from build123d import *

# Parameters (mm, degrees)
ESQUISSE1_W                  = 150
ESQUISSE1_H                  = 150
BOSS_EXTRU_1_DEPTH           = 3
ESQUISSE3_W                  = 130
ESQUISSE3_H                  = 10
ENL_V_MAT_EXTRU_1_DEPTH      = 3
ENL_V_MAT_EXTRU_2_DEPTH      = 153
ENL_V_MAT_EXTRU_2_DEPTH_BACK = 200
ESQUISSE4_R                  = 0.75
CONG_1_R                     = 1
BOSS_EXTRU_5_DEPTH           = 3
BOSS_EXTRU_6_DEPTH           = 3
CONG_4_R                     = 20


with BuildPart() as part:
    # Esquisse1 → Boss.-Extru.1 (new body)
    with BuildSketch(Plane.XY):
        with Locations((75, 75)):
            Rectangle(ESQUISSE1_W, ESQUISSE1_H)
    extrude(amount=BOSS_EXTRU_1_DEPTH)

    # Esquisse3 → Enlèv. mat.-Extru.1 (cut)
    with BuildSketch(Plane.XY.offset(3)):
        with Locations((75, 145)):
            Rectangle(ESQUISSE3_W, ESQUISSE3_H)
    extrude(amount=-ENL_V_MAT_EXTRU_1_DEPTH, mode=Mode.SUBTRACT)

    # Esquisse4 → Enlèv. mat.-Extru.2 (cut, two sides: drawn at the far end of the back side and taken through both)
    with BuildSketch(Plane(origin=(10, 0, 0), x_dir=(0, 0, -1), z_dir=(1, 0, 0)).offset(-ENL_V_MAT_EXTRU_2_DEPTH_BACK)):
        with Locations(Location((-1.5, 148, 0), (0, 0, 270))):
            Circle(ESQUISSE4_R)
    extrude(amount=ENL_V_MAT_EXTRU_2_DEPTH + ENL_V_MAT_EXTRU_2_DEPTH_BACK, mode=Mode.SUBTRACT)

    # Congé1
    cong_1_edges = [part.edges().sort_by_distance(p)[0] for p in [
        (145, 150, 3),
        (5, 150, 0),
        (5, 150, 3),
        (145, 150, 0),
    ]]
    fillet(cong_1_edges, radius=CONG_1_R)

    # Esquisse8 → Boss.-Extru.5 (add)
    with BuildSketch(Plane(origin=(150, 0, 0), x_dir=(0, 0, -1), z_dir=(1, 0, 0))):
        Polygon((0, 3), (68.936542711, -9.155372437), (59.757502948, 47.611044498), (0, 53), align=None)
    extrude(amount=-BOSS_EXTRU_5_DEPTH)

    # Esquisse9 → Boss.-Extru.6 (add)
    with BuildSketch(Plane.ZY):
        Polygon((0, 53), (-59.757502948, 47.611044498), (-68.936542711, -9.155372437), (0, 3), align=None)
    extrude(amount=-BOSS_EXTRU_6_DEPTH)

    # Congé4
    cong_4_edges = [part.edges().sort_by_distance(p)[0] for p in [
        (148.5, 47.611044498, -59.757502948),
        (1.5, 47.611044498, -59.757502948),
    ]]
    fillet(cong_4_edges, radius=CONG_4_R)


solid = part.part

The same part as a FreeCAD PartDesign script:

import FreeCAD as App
import Part
import Sketcher

V = App.Vector
Q = App.Units.Quantity


def edges_at(feature, points):
    """Names of the edges that pass closest to the given points."""
    edges = feature.Shape.Edges
    near = lambda p: min(range(len(edges)), key=lambda i: edges[i].distToShape(Part.Vertex(*p))[0])
    return sorted({f"Edge{near(p) + 1}" for p in points})

doc = App.newDocument("Part")
params = doc.addObject("Spreadsheet::Sheet", "Params")
for row, (alias, value) in enumerate([
    ("sketch1_width", "150 mm"),
    ("pad1_length", "3 mm"),
    ("sketch2_width", "130 mm"),
    ("sketch2_height", "10 mm"),
    ("pocket1_length", "3 mm"),
    ("sketch3_diameter", "1.5 mm"),
    ("fillet_radius", "1 mm"),
    ("sketch4_width", "50 mm"),
    ("sketch4_length", "70 mm"),
    ("sketch4_length2", "60 mm"),
    ("pad2_length", "3 mm"),
    ("sketch5_width", "50 mm"),
    ("sketch5_length", "60 mm"),
    ("sketch5_length2", "70 mm"),
    ("pad3_length", "3 mm"),
    ("fillet2_radius", "20 mm"),
], start=1):
    params.set(f"A{row}", alias)
    params.set(f"B{row}", "=" + value)
    params.setAlias(f"B{row}", alias)

body = doc.addObject("PartDesign::Body", "Body")

# Sketch on XY plane
sketch1 = body.newObject("Sketcher::SketchObject", "Sketch")
sketch1.AttachmentSupport = (doc.getObject("XY_Plane"), [""])
sketch1.MapMode = "FlatFace"
sketch1.addGeometry(Part.LineSegment(V(0, 150, 0), V(0, 0, 0)), False)
sketch1.addGeometry(Part.LineSegment(V(0, 0, 0), V(150, 0, 0)), False)
sketch1.addGeometry(Part.LineSegment(V(150, 0, 0), V(150, 150, 0)), False)
sketch1.addGeometry(Part.LineSegment(V(150, 150, 0), V(0, 150, 0)), False)
sketch1.addConstraint(Sketcher.Constraint("Coincident", 0, 2, 1, 1))
sketch1.addConstraint(Sketcher.Constraint("Coincident", 1, 2, 2, 1))
sketch1.addConstraint(Sketcher.Constraint("Coincident", 2, 2, 3, 1))
sketch1.addConstraint(Sketcher.Constraint("Coincident", 3, 2, 0, 1))
sketch1.addConstraint(Sketcher.Constraint("Vertical", 0))
sketch1.addConstraint(Sketcher.Constraint("Horizontal", 1))
sketch1.addConstraint(Sketcher.Constraint("Vertical", 2))
sketch1.addConstraint(Sketcher.Constraint("Horizontal", 3))
sketch1.addConstraint(Sketcher.Constraint("Coincident", 0, 2, -1, 1))
sketch1.addConstraint(Sketcher.Constraint("Equal", 3, 0))
sketch1.addConstraint(Sketcher.Constraint("DistanceX", 1, 1, 1, 2, 150.0))
sketch1.setExpression("Constraints[10]", "Params.sketch1_width")
pad1 = body.newObject("PartDesign::Pad", "Pad")
pad1.Profile = sketch1
pad1.setExpression("Length", "Params.pad1_length")

# Sketch on XY plane
sketch2 = body.newObject("Sketcher::SketchObject", "Sketch001")
sketch2.AttachmentSupport = (doc.getObject("XY_Plane"), [""])
sketch2.MapMode = "FlatFace"
sketch2.AttachmentOffset = App.Placement(V(0, 0, 3), App.Rotation())
sketch2.addGeometry(Part.LineSegment(V(10, 150, 0), V(10, 140, 0)), False)
sketch2.addGeometry(Part.LineSegment(V(10, 140, 0), V(140, 140, 0)), False)
sketch2.addGeometry(Part.LineSegment(V(140, 140, 0), V(140, 150, 0)), False)
sketch2.addGeometry(Part.LineSegment(V(140, 150, 0), V(10, 150, 0)), False)
sketch2.addConstraint(Sketcher.Constraint("Coincident", 0, 2, 1, 1))
sketch2.addConstraint(Sketcher.Constraint("Coincident", 1, 2, 2, 1))
sketch2.addConstraint(Sketcher.Constraint("Coincident", 2, 2, 3, 1))
sketch2.addConstraint(Sketcher.Constraint("Coincident", 3, 2, 0, 1))
sketch2.addConstraint(Sketcher.Constraint("Vertical", 0))
sketch2.addConstraint(Sketcher.Constraint("Horizontal", 1))
sketch2.addConstraint(Sketcher.Constraint("Vertical", 2))
sketch2.addConstraint(Sketcher.Constraint("Horizontal", 3))
sketch2.addConstraint(Sketcher.Constraint("DistanceX", 1, 1, 1, 2, 130.0))
sketch2.addConstraint(Sketcher.Constraint("DistanceY", 0, 2, 0, 1, 10.0))
sketch2.addConstraint(Sketcher.Constraint("DistanceX", -1, 1, 0, 2, 10.0))
sketch2.addConstraint(Sketcher.Constraint("DistanceY", -1, 1, 0, 2, 140.0))
sketch2.setExpression("Constraints[8]", "Params.sketch2_width")
sketch2.setExpression("Constraints[9]", "Params.sketch2_height")
pocket1 = body.newObject("PartDesign::Pocket", "Pocket")
pocket1.Profile = sketch2
pocket1.setExpression("Length", "Params.pocket1_length")

# Sketch on YZ plane
sketch3 = body.newObject("Sketcher::SketchObject", "Sketch002")
sketch3.AttachmentSupport = (doc.getObject("YZ_Plane"), [""])
sketch3.MapMode = "FlatFace"
sketch3.AttachmentOffset = App.Placement(V(0, 0, 10), App.Rotation())
sketch3.addGeometry(Part.Circle(V(148, 1.5, 0), V(0, 0, 1), 0.8), False)
sketch3.addConstraint(Sketcher.Constraint("Diameter", 0, 1.5))
sketch3.addConstraint(Sketcher.Constraint("DistanceX", -1, 1, 0, 3, 148.0))
sketch3.addConstraint(Sketcher.Constraint("DistanceY", -1, 1, 0, 3, 1.5))
sketch3.setExpression("Constraints[0]", "Params.sketch3_diameter")
pocket2 = body.newObject("PartDesign::Pocket", "Pocket001")
pocket2.Profile = sketch3
pocket2.Type = "ThroughAll"
pocket2.Midplane = True
doc.recompute()

fillet = body.newObject("PartDesign::Fillet", "Fillet")
fillet.Base = (pocket2, edges_at(pocket2, [
    (145, 150, 3),
    (5, 150, 0),
    (5, 150, 3),
    (145, 150, 0),
]))
fillet.setExpression("Radius", "Params.fillet_radius")

# Sketch on YZ plane
sketch4 = body.newObject("Sketcher::SketchObject", "Sketch003")
sketch4.AttachmentSupport = (doc.getObject("YZ_Plane"), [""])
sketch4.MapMode = "FlatFace"
sketch4.AttachmentOffset = App.Placement(V(0, 0, 150), App.Rotation())
sketch4.addGeometry(Part.LineSegment(V(3, 0, 0), V(-9, -69, 0)), False)
sketch4.addGeometry(Part.LineSegment(V(-9, -69, 0), V(48, -60, 0)), False)
sketch4.addGeometry(Part.LineSegment(V(48, -60, 0), V(53, 0, 0)), False)
sketch4.addGeometry(Part.LineSegment(V(53, 0, 0), V(3, 0, 0)), False)
sketch4.addConstraint(Sketcher.Constraint("Coincident", 0, 2, 1, 1))
sketch4.addConstraint(Sketcher.Constraint("Coincident", 1, 2, 2, 1))
sketch4.addConstraint(Sketcher.Constraint("Coincident", 2, 2, 3, 1))
sketch4.addConstraint(Sketcher.Constraint("Coincident", 3, 2, 0, 1))
sketch4.addConstraint(Sketcher.Constraint("Horizontal", 3))
sketch4.addConstraint(Sketcher.Constraint("PointOnObject", 2, 2, -1))
sketch4.addConstraint(Sketcher.Constraint("DistanceX", 3, 2, 3, 1, 50.0))
sketch4.addConstraint(Sketcher.Constraint("Angle", 0, Q("-100 deg")))
sketch4.addConstraint(Sketcher.Constraint("Distance", 0, 70.0))
sketch4.addConstraint(Sketcher.Constraint("Distance", 2, 60.0))
sketch4.addConstraint(Sketcher.Constraint("DistanceX", -1, 1, 2, 2, 53.0))
sketch4.addConstraint(Sketcher.Constraint("DistanceY", 0, 2, 1, 2, 9.17904))
sketch4.setExpression("Constraints[6]", "Params.sketch4_width")
sketch4.setExpression("Constraints[8]", "Params.sketch4_length")
sketch4.setExpression("Constraints[9]", "Params.sketch4_length2")
pad2 = body.newObject("PartDesign::Pad", "Pad001")
pad2.Profile = sketch4
pad2.setExpression("Length", "Params.pad2_length")
pad2.Reversed = True

# Sketch on YZ plane
sketch5 = body.newObject("Sketcher::SketchObject", "Sketch004")
sketch5.AttachmentSupport = (doc.getObject("YZ_Plane"), [""])
sketch5.MapMode = "FlatFace"
sketch5.addGeometry(Part.LineSegment(V(53, 0, 0), V(48, -60, 0)), False)
sketch5.addGeometry(Part.LineSegment(V(48, -60, 0), V(-9, -69, 0)), False)
sketch5.addGeometry(Part.LineSegment(V(-9, -69, 0), V(3, 0, 0)), False)
sketch5.addGeometry(Part.LineSegment(V(3, 0, 0), V(53, 0, 0)), False)
sketch5.addConstraint(Sketcher.Constraint("Coincident", 0, 2, 1, 1))
sketch5.addConstraint(Sketcher.Constraint("Coincident", 1, 2, 2, 1))
sketch5.addConstraint(Sketcher.Constraint("Coincident", 2, 2, 3, 1))
sketch5.addConstraint(Sketcher.Constraint("Coincident", 3, 2, 0, 1))
sketch5.addConstraint(Sketcher.Constraint("Horizontal", 3))
sketch5.addConstraint(Sketcher.Constraint("PointOnObject", 2, 2, -1))
sketch5.addConstraint(Sketcher.Constraint("DistanceX", 3, 1, 3, 2, 50.0))
sketch5.addConstraint(Sketcher.Constraint("Angle", 2, Q("80 deg")))
sketch5.addConstraint(Sketcher.Constraint("Distance", 0, 60.0))
sketch5.addConstraint(Sketcher.Constraint("Distance", 2, 70.0))
sketch5.addConstraint(Sketcher.Constraint("DistanceX", -1, 1, 2, 2, 3.0))
sketch5.addConstraint(Sketcher.Constraint("DistanceY", 1, 2, 0, 2, 9.17904))
sketch5.setExpression("Constraints[6]", "Params.sketch5_width")
sketch5.setExpression("Constraints[8]", "Params.sketch5_length")
sketch5.setExpression("Constraints[9]", "Params.sketch5_length2")
pad3 = body.newObject("PartDesign::Pad", "Pad002")
pad3.Profile = sketch5
pad3.setExpression("Length", "Params.pad3_length")
doc.recompute()

fillet2 = body.newObject("PartDesign::Fillet", "Fillet001")
fillet2.Base = (pad3, edges_at(pad3, [(148.5, 47.611, -59.758), (1.5, 47.611, -59.758)]))
fillet2.setExpression("Radius", "Params.fillet2_radius")

doc.recompute()
